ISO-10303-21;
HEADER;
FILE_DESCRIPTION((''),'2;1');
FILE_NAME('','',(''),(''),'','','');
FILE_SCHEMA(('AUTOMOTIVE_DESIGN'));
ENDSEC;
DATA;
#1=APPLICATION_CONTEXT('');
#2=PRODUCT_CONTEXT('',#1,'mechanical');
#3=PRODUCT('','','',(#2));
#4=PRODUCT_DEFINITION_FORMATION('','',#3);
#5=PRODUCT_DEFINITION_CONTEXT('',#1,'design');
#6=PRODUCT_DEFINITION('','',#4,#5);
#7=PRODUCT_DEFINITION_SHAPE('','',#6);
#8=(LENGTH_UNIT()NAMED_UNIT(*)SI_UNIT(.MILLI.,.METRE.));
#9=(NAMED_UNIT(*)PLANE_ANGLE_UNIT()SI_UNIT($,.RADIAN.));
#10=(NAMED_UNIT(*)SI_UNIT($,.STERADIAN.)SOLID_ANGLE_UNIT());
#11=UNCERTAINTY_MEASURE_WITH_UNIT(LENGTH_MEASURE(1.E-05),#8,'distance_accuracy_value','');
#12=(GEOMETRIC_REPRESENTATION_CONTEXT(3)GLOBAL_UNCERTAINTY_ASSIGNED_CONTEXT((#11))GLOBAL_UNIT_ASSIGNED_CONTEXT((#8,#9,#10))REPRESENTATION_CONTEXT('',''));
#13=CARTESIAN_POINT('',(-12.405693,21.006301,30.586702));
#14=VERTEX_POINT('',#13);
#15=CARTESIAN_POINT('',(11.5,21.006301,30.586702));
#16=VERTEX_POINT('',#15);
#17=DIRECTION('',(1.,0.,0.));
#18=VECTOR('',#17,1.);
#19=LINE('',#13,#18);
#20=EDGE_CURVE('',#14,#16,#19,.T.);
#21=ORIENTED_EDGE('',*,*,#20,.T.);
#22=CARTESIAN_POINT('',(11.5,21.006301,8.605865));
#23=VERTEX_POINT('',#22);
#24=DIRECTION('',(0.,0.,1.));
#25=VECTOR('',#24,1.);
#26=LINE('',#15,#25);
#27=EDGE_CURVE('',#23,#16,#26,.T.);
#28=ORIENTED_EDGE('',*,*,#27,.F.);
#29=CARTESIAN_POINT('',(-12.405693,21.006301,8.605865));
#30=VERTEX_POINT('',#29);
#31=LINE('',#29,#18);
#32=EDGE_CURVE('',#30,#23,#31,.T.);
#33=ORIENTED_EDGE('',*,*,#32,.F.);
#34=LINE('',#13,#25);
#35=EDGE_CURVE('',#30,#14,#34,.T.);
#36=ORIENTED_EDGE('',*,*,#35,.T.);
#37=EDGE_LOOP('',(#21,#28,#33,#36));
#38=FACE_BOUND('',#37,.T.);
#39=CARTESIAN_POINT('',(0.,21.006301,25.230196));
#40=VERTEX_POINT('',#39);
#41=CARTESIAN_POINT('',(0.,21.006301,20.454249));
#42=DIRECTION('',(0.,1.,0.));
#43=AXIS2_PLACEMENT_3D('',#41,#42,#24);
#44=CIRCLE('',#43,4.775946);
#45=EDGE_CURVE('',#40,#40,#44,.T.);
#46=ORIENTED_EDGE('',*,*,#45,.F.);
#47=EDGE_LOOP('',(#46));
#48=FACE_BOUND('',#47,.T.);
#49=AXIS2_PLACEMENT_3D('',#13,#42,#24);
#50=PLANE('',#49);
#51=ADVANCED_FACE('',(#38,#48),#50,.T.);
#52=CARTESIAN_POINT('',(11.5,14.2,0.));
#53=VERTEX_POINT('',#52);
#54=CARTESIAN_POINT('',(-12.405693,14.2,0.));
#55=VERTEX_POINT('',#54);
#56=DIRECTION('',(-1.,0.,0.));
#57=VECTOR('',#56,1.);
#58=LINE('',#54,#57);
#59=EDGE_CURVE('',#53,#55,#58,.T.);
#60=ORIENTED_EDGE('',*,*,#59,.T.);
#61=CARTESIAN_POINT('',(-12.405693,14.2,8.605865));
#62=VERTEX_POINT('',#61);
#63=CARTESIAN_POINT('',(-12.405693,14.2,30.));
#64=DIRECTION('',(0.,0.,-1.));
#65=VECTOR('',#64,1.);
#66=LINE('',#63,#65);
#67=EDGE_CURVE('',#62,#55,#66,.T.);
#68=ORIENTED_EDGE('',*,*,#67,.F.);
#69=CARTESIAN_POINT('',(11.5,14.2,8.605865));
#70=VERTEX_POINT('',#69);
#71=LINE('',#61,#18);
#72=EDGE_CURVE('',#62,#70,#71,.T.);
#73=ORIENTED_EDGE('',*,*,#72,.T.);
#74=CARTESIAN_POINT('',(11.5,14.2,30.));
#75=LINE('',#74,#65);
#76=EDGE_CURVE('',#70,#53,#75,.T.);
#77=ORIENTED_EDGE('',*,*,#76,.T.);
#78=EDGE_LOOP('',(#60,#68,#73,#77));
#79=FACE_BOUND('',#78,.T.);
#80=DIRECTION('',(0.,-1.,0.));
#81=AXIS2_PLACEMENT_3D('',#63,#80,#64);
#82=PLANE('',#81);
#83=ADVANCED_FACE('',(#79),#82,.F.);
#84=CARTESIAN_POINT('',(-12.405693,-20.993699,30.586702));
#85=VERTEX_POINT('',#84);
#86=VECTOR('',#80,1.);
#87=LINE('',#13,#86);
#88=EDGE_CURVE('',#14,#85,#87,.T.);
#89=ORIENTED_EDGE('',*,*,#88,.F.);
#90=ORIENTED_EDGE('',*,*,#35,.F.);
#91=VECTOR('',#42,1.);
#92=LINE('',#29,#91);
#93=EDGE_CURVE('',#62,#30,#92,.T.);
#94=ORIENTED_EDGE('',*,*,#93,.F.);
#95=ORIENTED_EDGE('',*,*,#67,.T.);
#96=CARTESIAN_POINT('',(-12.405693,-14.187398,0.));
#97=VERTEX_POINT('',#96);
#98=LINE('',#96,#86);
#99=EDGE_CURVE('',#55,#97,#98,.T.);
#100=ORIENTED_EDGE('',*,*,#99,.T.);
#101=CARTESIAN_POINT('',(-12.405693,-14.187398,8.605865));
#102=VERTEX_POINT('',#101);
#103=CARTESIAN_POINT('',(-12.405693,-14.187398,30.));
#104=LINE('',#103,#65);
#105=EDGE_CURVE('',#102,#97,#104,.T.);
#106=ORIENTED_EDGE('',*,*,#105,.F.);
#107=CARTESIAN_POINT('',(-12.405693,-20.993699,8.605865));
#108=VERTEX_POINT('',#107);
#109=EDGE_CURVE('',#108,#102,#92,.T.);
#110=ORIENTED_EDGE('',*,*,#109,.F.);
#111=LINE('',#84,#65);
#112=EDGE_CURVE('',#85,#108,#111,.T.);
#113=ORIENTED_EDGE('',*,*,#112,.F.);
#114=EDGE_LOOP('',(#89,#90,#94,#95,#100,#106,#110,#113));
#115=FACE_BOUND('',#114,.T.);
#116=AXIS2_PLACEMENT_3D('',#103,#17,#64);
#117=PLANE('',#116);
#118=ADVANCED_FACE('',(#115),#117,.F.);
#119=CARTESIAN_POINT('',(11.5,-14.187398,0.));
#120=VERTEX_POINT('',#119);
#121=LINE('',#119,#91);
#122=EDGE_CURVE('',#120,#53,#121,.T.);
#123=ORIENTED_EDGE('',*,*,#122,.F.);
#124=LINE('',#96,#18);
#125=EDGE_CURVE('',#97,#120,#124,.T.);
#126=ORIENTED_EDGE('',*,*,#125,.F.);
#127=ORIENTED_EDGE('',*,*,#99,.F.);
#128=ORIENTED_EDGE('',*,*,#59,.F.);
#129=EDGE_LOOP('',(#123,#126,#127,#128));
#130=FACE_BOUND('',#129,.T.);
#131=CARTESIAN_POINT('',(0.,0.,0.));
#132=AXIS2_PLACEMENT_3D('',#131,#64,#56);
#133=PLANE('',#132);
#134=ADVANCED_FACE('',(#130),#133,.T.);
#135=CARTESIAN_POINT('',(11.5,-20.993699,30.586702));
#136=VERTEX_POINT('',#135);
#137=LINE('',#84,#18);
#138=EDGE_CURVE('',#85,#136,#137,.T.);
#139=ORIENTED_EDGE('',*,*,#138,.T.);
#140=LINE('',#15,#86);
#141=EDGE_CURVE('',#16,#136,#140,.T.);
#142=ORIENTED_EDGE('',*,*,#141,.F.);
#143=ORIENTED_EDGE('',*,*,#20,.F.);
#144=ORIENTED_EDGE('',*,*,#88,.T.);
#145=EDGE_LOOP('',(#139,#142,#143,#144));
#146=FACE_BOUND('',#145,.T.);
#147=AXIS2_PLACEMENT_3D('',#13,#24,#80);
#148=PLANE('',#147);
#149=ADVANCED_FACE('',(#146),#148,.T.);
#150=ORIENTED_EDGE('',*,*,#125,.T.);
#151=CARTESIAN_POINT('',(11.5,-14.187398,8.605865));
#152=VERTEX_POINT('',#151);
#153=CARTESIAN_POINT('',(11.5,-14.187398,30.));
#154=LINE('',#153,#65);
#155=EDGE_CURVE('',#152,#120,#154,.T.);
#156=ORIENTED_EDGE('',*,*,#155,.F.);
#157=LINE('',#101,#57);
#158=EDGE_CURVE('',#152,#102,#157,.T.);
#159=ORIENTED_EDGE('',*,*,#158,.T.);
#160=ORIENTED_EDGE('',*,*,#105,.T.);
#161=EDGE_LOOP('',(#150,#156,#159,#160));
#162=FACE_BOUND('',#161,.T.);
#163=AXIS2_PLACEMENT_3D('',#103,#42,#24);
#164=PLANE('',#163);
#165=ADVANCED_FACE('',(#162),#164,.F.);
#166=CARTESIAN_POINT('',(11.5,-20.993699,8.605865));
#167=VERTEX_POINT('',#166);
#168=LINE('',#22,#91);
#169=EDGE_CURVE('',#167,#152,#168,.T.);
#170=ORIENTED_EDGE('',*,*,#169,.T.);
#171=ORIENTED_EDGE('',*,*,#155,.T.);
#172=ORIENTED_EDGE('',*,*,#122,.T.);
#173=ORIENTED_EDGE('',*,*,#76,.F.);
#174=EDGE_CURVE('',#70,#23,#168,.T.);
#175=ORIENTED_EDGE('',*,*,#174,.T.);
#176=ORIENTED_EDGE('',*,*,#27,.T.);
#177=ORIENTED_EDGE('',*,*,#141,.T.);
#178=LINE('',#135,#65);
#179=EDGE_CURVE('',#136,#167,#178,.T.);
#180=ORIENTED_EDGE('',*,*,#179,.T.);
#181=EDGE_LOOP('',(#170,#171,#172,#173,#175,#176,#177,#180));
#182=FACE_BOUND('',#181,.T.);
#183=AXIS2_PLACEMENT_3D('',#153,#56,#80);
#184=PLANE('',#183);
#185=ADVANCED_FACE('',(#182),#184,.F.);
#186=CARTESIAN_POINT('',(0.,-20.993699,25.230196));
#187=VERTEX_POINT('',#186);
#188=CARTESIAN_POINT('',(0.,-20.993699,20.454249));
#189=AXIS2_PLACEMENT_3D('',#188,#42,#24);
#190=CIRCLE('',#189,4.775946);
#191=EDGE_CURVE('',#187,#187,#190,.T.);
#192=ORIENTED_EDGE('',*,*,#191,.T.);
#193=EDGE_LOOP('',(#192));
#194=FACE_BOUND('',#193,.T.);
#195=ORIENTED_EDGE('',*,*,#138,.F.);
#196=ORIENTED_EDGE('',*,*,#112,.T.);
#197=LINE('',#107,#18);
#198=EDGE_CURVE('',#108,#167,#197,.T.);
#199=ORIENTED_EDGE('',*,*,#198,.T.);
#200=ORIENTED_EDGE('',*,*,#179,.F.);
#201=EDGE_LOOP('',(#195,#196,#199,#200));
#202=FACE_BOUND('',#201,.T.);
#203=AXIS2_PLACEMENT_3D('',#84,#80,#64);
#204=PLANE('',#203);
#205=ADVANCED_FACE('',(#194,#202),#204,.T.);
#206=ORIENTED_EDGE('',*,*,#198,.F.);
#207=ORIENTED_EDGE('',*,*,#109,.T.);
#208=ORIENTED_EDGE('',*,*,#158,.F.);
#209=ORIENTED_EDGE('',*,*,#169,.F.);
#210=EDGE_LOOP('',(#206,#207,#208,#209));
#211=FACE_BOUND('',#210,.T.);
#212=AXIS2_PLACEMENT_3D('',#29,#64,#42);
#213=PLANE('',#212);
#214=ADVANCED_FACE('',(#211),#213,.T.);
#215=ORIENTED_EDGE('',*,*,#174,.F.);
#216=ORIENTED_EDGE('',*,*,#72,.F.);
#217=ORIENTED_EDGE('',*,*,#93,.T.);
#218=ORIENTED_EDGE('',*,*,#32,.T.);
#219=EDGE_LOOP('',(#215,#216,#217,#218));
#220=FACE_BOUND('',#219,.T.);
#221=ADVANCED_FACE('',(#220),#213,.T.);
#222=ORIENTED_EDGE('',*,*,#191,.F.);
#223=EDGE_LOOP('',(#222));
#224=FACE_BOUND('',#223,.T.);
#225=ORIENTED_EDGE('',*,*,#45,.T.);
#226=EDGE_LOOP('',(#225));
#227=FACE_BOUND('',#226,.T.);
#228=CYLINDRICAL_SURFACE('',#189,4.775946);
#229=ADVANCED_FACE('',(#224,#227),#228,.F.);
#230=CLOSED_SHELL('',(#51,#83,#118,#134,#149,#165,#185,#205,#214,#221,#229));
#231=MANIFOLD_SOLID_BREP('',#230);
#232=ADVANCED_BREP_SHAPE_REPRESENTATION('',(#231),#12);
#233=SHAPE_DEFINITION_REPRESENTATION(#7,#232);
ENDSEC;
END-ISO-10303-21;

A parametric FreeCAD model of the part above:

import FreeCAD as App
import Part
import Sketcher

V = App.Vector
Q = App.Units.Quantity

doc = App.newDocument("Part")
body = doc.addObject("PartDesign::Body", "Body")

# Sketch on XY plane
sketch1 = body.newObject("Sketcher::SketchObject", "Sketch")
sketch1.AttachmentSupport = (doc.getObject("XY_Plane"), [""])
sketch1.MapMode = "FlatFace"
sketch1.addGeometry(Part.LineSegment(V(-12, 14, 0), V(-12, -14, 0)), False)
sketch1.addGeometry(Part.LineSegment(V(-12, -14, 0), V(11, -14, 0)), False)
sketch1.addGeometry(Part.LineSegment(V(11, -14, 0), V(11, 14, 0)), False)
sketch1.addGeometry(Part.LineSegment(V(11, 14, 0), V(-12, 14, 0)), False)
sketch1.addConstraint(Sketcher.Constraint("Coincident", 0, 2, 1, 1))
sketch1.addConstraint(Sketcher.Constraint("Coincident", 1, 2, 2, 1))
sketch1.addConstraint(Sketcher.Constraint("Coincident", 2, 2, 3, 1))
sketch1.addConstraint(Sketcher.Constraint("Coincident", 3, 2, 0, 1))
sketch1.addConstraint(Sketcher.Constraint("Vertical", 0))
sketch1.addConstraint(Sketcher.Constraint("Horizontal", 1))
sketch1.addConstraint(Sketcher.Constraint("Vertical", 2))
sketch1.addConstraint(Sketcher.Constraint("Horizontal", 3))
sketch1.addConstraint(Sketcher.Constraint("DistanceX", -1, 1, 1, 2, Q("11.5 mm")))
sketch1.addConstraint(Sketcher.Constraint("DistanceY", -1, 1, 2, 2, Q("14.2 mm")))
sketch1.addConstraint(Sketcher.Constraint("DistanceY", 0, 2, 0, 1, Q("28.387398 mm")))
sketch1.addConstraint(Sketcher.Constraint("DistanceX", 1, 1, 1, 2, Q("23.905693 mm")))
pad1 = body.newObject("PartDesign::Pad", "Pad")
pad1.Profile = sketch1
pad1.Length = 30

# Sketch on YZ plane
sketch2 = body.newObject("Sketcher::SketchObject", "Sketch001")
sketch2.AttachmentSupport = (doc.getObject("YZ_Plane"), [""])
sketch2.MapMode = "FlatFace"
sketch2.AttachmentOffset = App.Placement(V(0, 0, 11.5), App.Rotation())
sketch2.addGeometry(Part.LineSegment(V(21, 31, 0), V(-21, 31, 0)), False)
sketch2.addGeometry(Part.LineSegment(V(-21, 31, 0), V(-21, 9, 0)), False)
sketch2.addGeometry(Part.LineSegment(V(-21, 9, 0), V(21, 9, 0)), False)
sketch2.addGeometry(Part.LineSegment(V(21, 9, 0), V(21, 31, 0)), False)
sketch2.addConstraint(Sketcher.Constraint("Coincident", 0, 2, 1, 1))
sketch2.addConstraint(Sketcher.Constraint("Coincident", 1, 2, 2, 1))
sketch2.addConstraint(Sketcher.Constraint("Coincident", 2, 2, 3, 1))
sketch2.addConstraint(Sketcher.Constraint("Coincident", 3, 2, 0, 1))
sketch2.addConstraint(Sketcher.Constraint("Horizontal", 0))
sketch2.addConstraint(Sketcher.Constraint("Vertical", 1))
sketch2.addConstraint(Sketcher.Constraint("Horizontal", 2))
sketch2.addConstraint(Sketcher.Constraint("Vertical", 3))
sketch2.addConstraint(Sketcher.Constraint("DistanceX", 0, 2, 0, 1, Q("42 mm")))
sketch2.addConstraint(Sketcher.Constraint("DistanceX", 0, 2, -1, 1, Q("20.993699 mm")))
sketch2.addConstraint(Sketcher.Constraint("DistanceY", -1, 1, 0, 2, Q("30.586702 mm")))
sketch2.addConstraint(Sketcher.Constraint("DistanceY", 1, 2, 1, 1, Q("21.980837 mm")))
pad2 = body.newObject("PartDesign::Pad", "Pad001")
pad2.Profile = sketch2
pad2.Type = "UpToLast"
pad2.Reversed = True

# Sketch on XZ plane
sketch3 = body.newObject("Sketcher::SketchObject", "Sketch002")
sketch3.AttachmentSupport = (doc.getObject("XZ_Plane"), [""])
sketch3.MapMode = "FlatFace"
sketch3.AttachmentOffset = App.Placement(V(0, 0, -21.006301), App.Rotation())
sketch3.addGeometry(Part.Circle(V(0, 20.5, 0), V(0, 0, 1), 4.8), False)
sketch3.addConstraint(Sketcher.Constraint("PointOnObject", 0, 3, -2))
sketch3.addConstraint(Sketcher.Constraint("Diameter", 0, Q("9.551893 mm")))
sketch3.addConstraint(Sketcher.Constraint("DistanceY", -1, 1, 0, 3, Q("20.454249 mm")))
pocket1 = body.newObject("PartDesign::Pocket", "Pocket")
pocket1.Profile = sketch3
pocket1.Type = "ThroughAll"
pocket1.Reversed = True

doc.recompute()
